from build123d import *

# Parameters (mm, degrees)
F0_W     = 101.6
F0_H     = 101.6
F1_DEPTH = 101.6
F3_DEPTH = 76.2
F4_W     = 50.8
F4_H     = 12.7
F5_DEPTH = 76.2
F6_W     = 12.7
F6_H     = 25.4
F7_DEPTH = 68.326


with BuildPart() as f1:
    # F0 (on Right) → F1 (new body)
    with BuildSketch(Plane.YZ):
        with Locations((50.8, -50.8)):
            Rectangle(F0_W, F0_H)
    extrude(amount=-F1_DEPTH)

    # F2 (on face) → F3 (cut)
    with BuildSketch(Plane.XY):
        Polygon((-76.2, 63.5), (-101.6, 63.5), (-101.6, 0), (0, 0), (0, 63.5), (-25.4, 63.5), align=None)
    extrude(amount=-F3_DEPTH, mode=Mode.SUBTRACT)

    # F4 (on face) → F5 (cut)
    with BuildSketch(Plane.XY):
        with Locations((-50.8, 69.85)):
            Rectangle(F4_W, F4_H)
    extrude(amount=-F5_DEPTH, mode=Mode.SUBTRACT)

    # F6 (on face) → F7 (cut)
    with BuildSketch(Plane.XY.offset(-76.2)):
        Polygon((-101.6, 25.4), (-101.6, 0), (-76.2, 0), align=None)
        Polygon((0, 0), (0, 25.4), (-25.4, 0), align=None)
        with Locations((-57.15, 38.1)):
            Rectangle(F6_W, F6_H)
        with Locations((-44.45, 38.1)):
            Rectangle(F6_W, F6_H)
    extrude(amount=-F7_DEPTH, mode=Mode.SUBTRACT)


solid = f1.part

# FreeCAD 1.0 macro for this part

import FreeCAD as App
import Part
import Sketcher
Q = App.Units.Quantity

doc = App.newDocument("Part")
params = doc.addObject("Spreadsheet::Sheet", "Params")
for row, (alias, value) in enumerate([
    ("sketch1_width", "4 in"),
    ("pad1_length", "4 in"),
    ("sketch2_width", "4 in"),
    ("sketch2_height", "2.5 in"),
    ("pocket1_length", "3 in"),
    ("sketch3_width", "2 in"),
    ("sketch3_height", "0.5 in"),
    ("pocket2_length", "3 in"),
    ("sketch4_width", "1 in"),
    ("pocket3_length", "2.69 in"),
], start=1):
    params.set(f"A{row}", alias)
    params.set(f"B{row}", "=" + value)
    params.setAlias(f"B{row}", alias)

body = doc.addObject("PartDesign::Body", "Body")

# Sketch on YZ plane
sketch1 = body.newObject("Sketcher::SketchObject", "Sketch")
sketch1.AttachmentSupport = (doc.getObject("YZ_Plane"), [""])
sketch1.MapMode = "FlatFace"
sketch1.addGeometry([
    Part.LineSegment(App.Vector(0, 0, 0), App.Vector(0, -101.6, 0)),
    Part.LineSegment(App.Vector(0, -101.6, 0), App.Vector(101.6, -101.6, 0)),
    Part.LineSegment(App.Vector(101.6, -101.6, 0), App.Vector(101.6, 0, 0)),
    Part.LineSegment(App.Vector(101.6, 0, 0), App.Vector(0, 0, 0)),
], False)
sketch1.addConstraint([
    Sketcher.Constraint("Coincident", 0, 2, 1, 1),
    Sketcher.Constraint("Coincident", 1, 2, 2, 1),
    Sketcher.Constraint("Coincident", 2, 2, 3, 1),
    Sketcher.Constraint("Coincident", 3, 2, 0, 1),
    Sketcher.Constraint("Vertical", 0),
    Sketcher.Constraint("Horizontal", 1),
    Sketcher.Constraint("Vertical", 2),
    Sketcher.Constraint("Horizontal", 3),
    Sketcher.Constraint("Coincident", 3, 2, -1, 1),
    Sketcher.Constraint("Equal", 3, 0),
    Sketcher.Constraint("DistanceX", 1, 1, 1, 2, Q("4 in")),
])
sketch1.setExpression("Constraints[10]", "Params.sketch1_width")
pad1 = body.newObject("PartDesign::Pad", "Pad")
pad1.Profile = sketch1
pad1.setExpression("Length", "Params.pad1_length")
pad1.Reversed = True

# Sketch on XY plane
sketch2 = body.newObject("Sketcher::SketchObject", "Sketch001")
sketch2.AttachmentSupport = (doc.getObject("XY_Plane"), [""])
sketch2.MapMode = "FlatFace"
sketch2.addGeometry([
    Part.LineSegment(App.Vector(-101.6, 63.5, 0), App.Vector(-101.6, 0, 0)),
    Part.LineSegment(App.Vector(-101.6, 0, 0), App.Vector(0, 0, 0)),
    Part.LineSegment(App.Vector(0, 0, 0), App.Vector(0, 63.5, 0)),
    Part.LineSegment(App.Vector(0, 63.5, 0), App.Vector(-101.6, 63.5, 0)),
], False)
sketch2.addConstraint([
    Sketcher.Constraint("Coincident", 0, 2, 1, 1),
    Sketcher.Constraint("Coincident", 1, 2, 2, 1),
    Sketcher.Constraint("Coincident", 2, 2, 3, 1),
    Sketcher.Constraint("Coincident", 3, 2, 0, 1),
    Sketcher.Constraint("Vertical", 0),
    Sketcher.Constraint("Horizontal", 1),
    Sketcher.Constraint("Vertical", 2),
    Sketcher.Constraint("Horizontal", 3),
    Sketcher.Constraint("Coincident", 1, 2, -1, 1),
    Sketcher.Constraint("DistanceX", 1, 1, 1, 2, Q("4 in")),
    Sketcher.Constraint("DistanceY", 0, 2, 0, 1, Q("2.5 in")),
])
sketch2.setExpression("Constraints[9]", "Params.sketch2_width")
sketch2.setExpression("Constraints[10]", "Params.sketch2_height")
pocket1 = body.newObject("PartDesign::Pocket", "Pocket")
pocket1.Profile = sketch2
pocket1.setExpression("Length", "Params.pocket1_length")

# Sketch on XY plane
sketch3 = body.newObject("Sketcher::SketchObject", "Sketch002")
sketch3.AttachmentSupport = (doc.getObject("XY_Plane"), [""])
sketch3.MapMode = "FlatFace"
sketch3.addGeometry([
    Part.LineSegment(App.Vector(-76.2, 76.2, 0), App.Vector(-76.2, 63.5, 0)),
    Part.LineSegment(App.Vector(-76.2, 63.5, 0), App.Vector(-25.4, 63.5, 0)),
    Part.LineSegment(App.Vector(-25.4, 63.5, 0), App.Vector(-25.4, 76.2, 0)),
    Part.LineSegment(App.Vector(-25.4, 76.2, 0), App.Vector(-76.2, 76.2, 0)),
], False)
sketch3.addConstraint([
    Sketcher.Constraint("Coincident", 0, 2, 1, 1),
    Sketcher.Constraint("Coincident", 1, 2, 2, 1),
    Sketcher.Constraint("Coincident", 2, 2, 3, 1),
    Sketcher.Constraint("Coincident", 3, 2, 0, 1),
    Sketcher.Constraint("Vertical", 0),
    Sketcher.Constraint("Horizontal", 1),
    Sketcher.Constraint("Vertical", 2),
    Sketcher.Constraint("Horizontal", 3),
    Sketcher.Constraint("DistanceX", 1, 1, 1, 2, Q("2 in")),
    Sketcher.Constraint("DistanceY", 0, 2, 0, 1, Q("0.5 in")),
    Sketcher.Constraint("DistanceX", 0, 2, -1, 1, Q("3 in")),
    Sketcher.Constraint("DistanceY", -1, 1, 2, 2, Q("3 in")),
])
sketch3.setExpression("Constraints[8]", "Params.sketch3_width")
sketch3.setExpression("Constraints[9]", "Params.sketch3_height")
pocket2 = body.newObject("PartDesign::Pocket", "Pocket001")
pocket2.Profile = sketch3
pocket2.setExpression("Length", "Params.pocket2_length")

# Sketch on XY plane
sketch4 = body.newObject("Sketcher::SketchObject", "Sketch003")
sketch4.AttachmentSupport = (doc.getObject("XY_Plane"), [""])
sketch4.MapMode = "FlatFace"
sketch4.AttachmentOffset = App.Placement(App.Vector(0, 0, -3 * 25.4), App.Rotation())
sketch4.addGeometry([
    Part.LineSegment(App.Vector(-101.6, 25.4, 0), App.Vector(-101.6, 0, 0)),  # 0
    Part.LineSegment(App.Vector(-101.6, 0, 0), App.Vector(-76.2, 0, 0)),  # 1
    Part.LineSegment(App.Vector(-76.2, 0, 0), App.Vector(-101.6, 25.4, 0)),  # 2
    Part.LineSegment(App.Vector(0, 0, 0), App.Vector(0, 25.4, 0)),  # 3
    Part.LineSegment(App.Vector(0, 25.4, 0), App.Vector(-25.4, 0, 0)),  # 4
    Part.LineSegment(App.Vector(-25.4, 0, 0), App.Vector(0, 0, 0)),  # 5
    Part.LineSegment(App.Vector(-63.5, 50.8, 0), App.Vector(-63.5, 25.4, 0)),  # 6
    Part.LineSegment(App.Vector(-63.5, 25.4, 0), App.Vector(-38.1, 25.4, 0)),  # 7
    Part.LineSegment(App.Vector(-38.1, 25.4, 0), App.Vector(-38.1, 50.8, 0)),  # 8
    Part.LineSegment(App.Vector(-38.1, 50.8, 0), App.Vector(-63.5, 50.8, 0)),  # 9
], False)
sketch4.addConstraint([
    Sketcher.Constraint("Coincident", 0, 2, 1, 1),
    Sketcher.Constraint("Coincident", 1, 2, 2, 1),
    Sketcher.Constraint("Coincident", 2, 2, 0, 1),
    Sketcher.Constraint("Coincident", 3, 2, 4, 1),
    Sketcher.Constraint("Coincident", 4, 2, 5, 1),
    Sketcher.Constraint("Coincident", 5, 2, 3, 1),
    Sketcher.Constraint("Coincident", 6, 2, 7, 1),
    Sketcher.Constraint("Coincident", 7, 2, 8, 1),
    Sketcher.Constraint("Coincident", 8, 2, 9, 1),
    Sketcher.Constraint("Coincident", 9, 2, 6, 1),
    Sketcher.Constraint("Vertical", 0),
    Sketcher.Constraint("Horizontal", 1),
    Sketcher.Constraint("Vertical", 3),
    Sketcher.Constraint("Horizontal", 5),
    Sketcher.Constraint("Vertical", 6),
    Sketcher.Constraint("Horizontal", 7),
    Sketcher.Constraint("Vertical", 8),
    Sketcher.Constraint("Horizontal", 9),
    Sketcher.Constraint("Coincident", 5, 2, -1, 1),
    Sketcher.Constraint("PointOnObject", 0, 2, -1),
    Sketcher.Constraint("Perpendicular", 2, 4),
    Sketcher.Constraint("Horizontal", 2, 2, 3, 2),
    Sketcher.Constraint("Horizontal", 3, 2, 6, 2),
    Sketcher.Constraint("Equal", 1, 5),
    Sketcher.Constraint("Equal", 5, 7),
    Sketcher.Constraint("Equal", 3, 6),
    Sketcher.Constraint("DistanceX", 1, 1, 1, 2, Q("1 in")),
    Sketcher.Constraint("DistanceX", 0, 2, -1, 1, Q("4 in")),
    Sketcher.Constraint("DistanceX", 6, 2, -1, 1, Q("2.5 in")),
])
sketch4.setExpression("Constraints[26]", "Params.sketch4_width")
pocket3 = body.newObject("PartDesign::Pocket", "Pocket002")
pocket3.Profile = sketch4
pocket3.setExpression("Length", "Params.pocket3_length")

doc.recompute()
